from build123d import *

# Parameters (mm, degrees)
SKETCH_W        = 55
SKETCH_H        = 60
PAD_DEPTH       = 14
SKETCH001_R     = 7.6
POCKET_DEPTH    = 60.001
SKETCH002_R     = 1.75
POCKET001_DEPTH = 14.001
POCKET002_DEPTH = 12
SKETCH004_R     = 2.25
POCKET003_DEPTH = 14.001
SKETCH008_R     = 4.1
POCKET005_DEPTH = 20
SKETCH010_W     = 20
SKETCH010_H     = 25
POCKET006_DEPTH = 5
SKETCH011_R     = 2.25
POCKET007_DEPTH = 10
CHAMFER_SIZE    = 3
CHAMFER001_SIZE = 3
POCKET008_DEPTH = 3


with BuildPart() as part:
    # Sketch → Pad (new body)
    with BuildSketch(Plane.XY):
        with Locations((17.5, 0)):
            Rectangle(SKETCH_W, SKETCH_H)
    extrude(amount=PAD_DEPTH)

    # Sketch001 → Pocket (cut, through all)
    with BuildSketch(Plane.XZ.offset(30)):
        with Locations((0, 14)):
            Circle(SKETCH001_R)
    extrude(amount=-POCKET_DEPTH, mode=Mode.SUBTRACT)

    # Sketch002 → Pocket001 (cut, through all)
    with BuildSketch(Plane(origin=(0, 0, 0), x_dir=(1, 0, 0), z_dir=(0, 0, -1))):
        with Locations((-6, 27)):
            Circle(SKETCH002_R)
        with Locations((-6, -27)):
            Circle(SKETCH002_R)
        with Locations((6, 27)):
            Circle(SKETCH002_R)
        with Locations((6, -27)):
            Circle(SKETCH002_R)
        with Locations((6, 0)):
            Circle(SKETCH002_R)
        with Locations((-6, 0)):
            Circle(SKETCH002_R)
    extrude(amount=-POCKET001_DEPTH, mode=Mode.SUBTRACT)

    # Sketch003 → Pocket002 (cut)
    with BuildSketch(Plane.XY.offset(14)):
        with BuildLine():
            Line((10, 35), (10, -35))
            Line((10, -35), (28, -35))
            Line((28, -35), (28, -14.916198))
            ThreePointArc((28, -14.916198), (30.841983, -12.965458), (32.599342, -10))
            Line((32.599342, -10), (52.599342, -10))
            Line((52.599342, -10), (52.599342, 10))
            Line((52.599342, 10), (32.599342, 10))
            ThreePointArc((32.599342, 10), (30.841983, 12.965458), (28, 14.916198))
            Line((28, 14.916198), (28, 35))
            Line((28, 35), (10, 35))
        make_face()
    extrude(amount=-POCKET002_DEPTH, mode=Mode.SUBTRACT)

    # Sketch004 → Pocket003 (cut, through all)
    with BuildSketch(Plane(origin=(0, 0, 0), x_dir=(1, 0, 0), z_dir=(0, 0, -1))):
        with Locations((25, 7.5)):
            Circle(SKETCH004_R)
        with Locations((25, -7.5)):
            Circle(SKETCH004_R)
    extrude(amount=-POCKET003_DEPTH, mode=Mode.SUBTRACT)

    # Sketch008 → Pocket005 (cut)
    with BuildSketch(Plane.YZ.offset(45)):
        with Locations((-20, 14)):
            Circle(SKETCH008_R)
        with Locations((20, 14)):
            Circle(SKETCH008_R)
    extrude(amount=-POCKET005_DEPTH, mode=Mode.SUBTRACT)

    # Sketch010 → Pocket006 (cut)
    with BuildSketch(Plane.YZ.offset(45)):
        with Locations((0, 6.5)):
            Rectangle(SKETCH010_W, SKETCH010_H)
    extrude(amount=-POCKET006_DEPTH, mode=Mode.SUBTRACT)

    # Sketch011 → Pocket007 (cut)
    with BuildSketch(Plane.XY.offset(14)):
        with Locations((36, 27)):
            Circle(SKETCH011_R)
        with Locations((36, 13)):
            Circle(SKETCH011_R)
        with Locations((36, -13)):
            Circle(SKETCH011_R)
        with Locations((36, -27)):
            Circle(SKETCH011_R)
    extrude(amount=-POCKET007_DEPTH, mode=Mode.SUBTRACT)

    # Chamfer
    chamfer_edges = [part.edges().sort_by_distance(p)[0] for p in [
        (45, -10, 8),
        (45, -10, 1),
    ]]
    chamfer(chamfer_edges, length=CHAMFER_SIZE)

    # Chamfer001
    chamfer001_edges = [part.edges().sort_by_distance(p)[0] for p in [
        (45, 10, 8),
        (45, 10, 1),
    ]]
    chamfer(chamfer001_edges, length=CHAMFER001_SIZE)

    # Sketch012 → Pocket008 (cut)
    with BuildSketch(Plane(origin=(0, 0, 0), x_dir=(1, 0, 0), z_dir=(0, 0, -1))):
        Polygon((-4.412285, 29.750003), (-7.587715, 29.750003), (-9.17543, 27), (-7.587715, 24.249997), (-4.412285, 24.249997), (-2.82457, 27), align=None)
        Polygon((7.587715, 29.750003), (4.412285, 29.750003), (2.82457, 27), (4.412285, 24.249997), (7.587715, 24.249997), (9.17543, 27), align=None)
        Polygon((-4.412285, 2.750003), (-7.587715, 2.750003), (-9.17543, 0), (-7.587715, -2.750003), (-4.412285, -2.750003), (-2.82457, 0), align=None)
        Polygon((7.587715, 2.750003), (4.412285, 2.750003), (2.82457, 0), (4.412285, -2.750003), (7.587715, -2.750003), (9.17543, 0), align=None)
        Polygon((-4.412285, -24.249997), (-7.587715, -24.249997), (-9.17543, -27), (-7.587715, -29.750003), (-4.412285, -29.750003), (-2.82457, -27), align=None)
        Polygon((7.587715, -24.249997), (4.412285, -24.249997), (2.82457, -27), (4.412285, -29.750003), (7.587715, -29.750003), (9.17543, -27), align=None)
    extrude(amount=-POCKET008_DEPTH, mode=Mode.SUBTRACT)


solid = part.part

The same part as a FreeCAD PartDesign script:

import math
import FreeCAD as App
import Part
import Sketcher

V = App.Vector
Q = App.Units.Quantity


def edges_at(feature, points):
    """Names of the edges that pass closest to the given points."""
    edges = feature.Shape.Edges
    near = lambda p: min(range(len(edges)), key=lambda i: edges[i].distToShape(Part.Vertex(*p))[0])
    return sorted({f"Edge{near(p) + 1}" for p in points})


def add_polygon(sketch, points):
    """Adds a closed chain of lines whose ends are joined by coincident constraints."""
    first, n = sketch.GeometryCount, len(points)
    for a, b in zip(points, points[1:] + points[:1]):
        sketch.addGeometry(Part.LineSegment(App.Vector(*a, 0), App.Vector(*b, 0)), False)
    for i in range(n):
        sketch.addConstraint(Sketcher.Constraint("Coincident", first + i, 2, first + (i + 1) % n, 1))

doc = App.newDocument("Part")
body = doc.addObject("PartDesign::Body", "Body")

sketch1 = doc.addObject("Sketcher::SketchObject", "Sketch")
body.addObject(sketch1)
sketch1.AttachmentSupport = (doc.XY_Plane, [""])
sketch1.MapMode = "FlatFace"
add_polygon(sketch1, [(-10, 30), (-10, -30), (45, -30), (45, 30)])
sketch1.addConstraint([
    Sketcher.Constraint("Vertical", 0),
    Sketcher.Constraint("Horizontal", 1),
    Sketcher.Constraint("Vertical", 2),
    Sketcher.Constraint("Horizontal", 3),
    Sketcher.Constraint("DistanceX", 1, 1, 1, 2, Q("55 mm")),
    Sketcher.Constraint("DistanceY", 0, 2, 0, 1, Q("60 mm")),
    Sketcher.Constraint("DistanceX", 0, 2, -1, 1, Q("10 mm")),
    Sketcher.Constraint("DistanceY", 0, 2, -1, 1, Q("30 mm")),
])
pad1 = doc.addObject("PartDesign::Pad", "Pad")
body.addObject(pad1)
pad1.Profile = sketch1
pad1.Length = 14

sketch2 = doc.addObject("Sketcher::SketchObject", "Sketch001")
body.addObject(sketch2)
sketch2.AttachmentSupport = (doc.XZ_Plane, [""])
sketch2.MapMode = "FlatFace"
sketch2.AttachmentOffset = App.Placement(V(0, 0, 30), App.Rotation())
sketch2.addGeometry(Part.Circle(V(0, 14, 0), V(0, 0, 1), 8), False)
sketch2.addConstraint([
    Sketcher.Constraint("PointOnObject", 0, 3, -2),
    Sketcher.Constraint("Diameter", 0, Q("15.2 mm")),
    Sketcher.Constraint("DistanceY", -1, 1, 0, 3, Q("14 mm")),
])
pocket1 = doc.addObject("PartDesign::Pocket", "Pocket")
body.addObject(pocket1)
pocket1.Profile = sketch2
pocket1.Type = "ThroughAll"

sketch3 = doc.addObject("Sketcher::SketchObject", "Sketch002")
body.addObject(sketch3)
sketch3.AttachmentSupport = (doc.XY_Plane, [""])
sketch3.MapMode = "FlatFace"
sketch3.addGeometry([
    Part.Circle(V(-6, -27, 0), V(0, 0, 1), 1.8),
    Part.Circle(V(-6, 27, 0), V(0, 0, 1), 1.8),
    Part.Circle(V(6, -27, 0), V(0, 0, 1), 1.8),
    Part.Circle(V(6, 27, 0), V(0, 0, 1), 1.8),
    Part.Circle(V(6, 0, 0), V(0, 0, 1), 1.8),
    Part.Circle(V(-6, 0, 0), V(0, 0, 1), 1.8),
], False)
sketch3.addConstraint([
    Sketcher.Constraint("Equal", 0, 1),
    Sketcher.Constraint("Equal", 1, 2),
    Sketcher.Constraint("Equal", 2, 3),
    Sketcher.Constraint("Equal", 3, 4),
    Sketcher.Constraint("Equal", 4, 5),
    Sketcher.Constraint("Symmetric", 1, 3, 2, 3, -1, 1),
    Sketcher.Constraint("Symmetric", 0, 3, 3, 3, -1, 1),
    Sketcher.Constraint("Symmetric", 4, 3, 5, 3, -1, 1),
    Sketcher.Constraint("Symmetric", 0, 3, 2, 3, -2),
    Sketcher.Constraint("PointOnObject", 4, 3, -1),
    Sketcher.Constraint("Vertical", 3, 3, 4, 3),
    Sketcher.Constraint("Diameter", 0, Q("3.5 mm")),
    Sketcher.Constraint("DistanceX", 0, 3, -1, 1, Q("6 mm")),
    Sketcher.Constraint("DistanceY", 0, 3, -1, 1, Q("27 mm")),
])
pocket2 = doc.addObject("PartDesign::Pocket", "Pocket001")
body.addObject(pocket2)
pocket2.Profile = sketch3
pocket2.Type = "ThroughAll"
pocket2.Reversed = True

sketch4 = doc.addObject("Sketcher::SketchObject", "Sketch003")
body.addObject(sketch4)
sketch4.AttachmentSupport = (doc.XY_Plane, [""])
sketch4.MapMode = "FlatFace"
sketch4.AttachmentOffset = App.Placement(V(0, 0, 14), App.Rotation())
sketch4.addGeometry([
    Part.LineSegment(V(10, 35, 0), V(10, -35, 0)),
    Part.LineSegment(V(10, -35, 0), V(28, -35, 0)),
    Part.LineSegment(V(28, -35, 0), V(28, -15, 0)),
    Part.ArcOfCircle(Part.Circle(V(25, -8, 0), V(0, 0, 1), 8), math.radians(-68), math.radians(-18)),
    Part.LineSegment(V(33, -10, 0), V(53, -10, 0)),
    Part.LineSegment(V(53, -10, 0), V(53, 10, 0)),
    Part.LineSegment(V(53, 10, 0), V(33, 10, 0)),
    Part.ArcOfCircle(Part.Circle(V(25, 8, 0), V(0, 0, 1), 8), math.radians(18), math.radians(68)),
    Part.LineSegment(V(28, 15, 0), V(28, 35, 0)),
    Part.LineSegment(V(28, 35, 0), V(10, 35, 0)),
], False)
sketch4.addConstraint([
    Sketcher.Constraint("Coincident", 0, 2, 1, 1),
    Sketcher.Constraint("Coincident", 1, 2, 2, 1),
    Sketcher.Constraint("Coincident", 2, 2, 3, 1),
    Sketcher.Constraint("Coincident", 3, 2, 4, 1),
    Sketcher.Constraint("Coincident", 4, 2, 5, 1),
    Sketcher.Constraint("Coincident", 5, 2, 6, 1),
    Sketcher.Constraint("Coincident", 6, 2, 7, 1),
    Sketcher.Constraint("Coincident", 7, 2, 8, 1),
    Sketcher.Constraint("Coincident", 8, 2, 9, 1),
    Sketcher.Constraint("Coincident", 9, 2, 0, 1),
    Sketcher.Constraint("Vertical", 0),
    Sketcher.Constraint("Horizontal", 1),
    Sketcher.Constraint("Vertical", 2),
    Sketcher.Constraint("Horizontal", 4),
    Sketcher.Constraint("Vertical", 5),
    Sketcher.Constraint("Horizontal", 6),
    Sketcher.Constraint("Vertical", 8),
    Sketcher.Constraint("Horizontal", 9),
    Sketcher.Constraint("Equal", 3, 7),
    Sketcher.Constraint("Symmetric", 3, 3, 7, 3, -1),
    Sketcher.Constraint("Symmetric", 1, 2, 8, 2, -1),
    Sketcher.Constraint("Vertical", 3, 2, 6, 2),
    Sketcher.Constraint("Equal", 6, 5),
    Sketcher.Constraint("Radius", 3, Q("7.999999 mm")),
    Sketcher.Constraint("DistanceX", 1, 1, 1, 2, Q("18 mm")),
    Sketcher.Constraint("DistanceX", 4, 1, 4, 2, Q("20 mm")),
    Sketcher.Constraint("DistanceY", 0, 2, 0, 1, Q("70 mm")),
    Sketcher.Constraint("DistanceX", -1, 1, 3, 3, Q("25.000001 mm")),
    Sketcher.Constraint("DistanceX", -1, 1, 0, 2, Q("10 mm")),
    Sketcher.Constraint("DistanceY", 3, 3, 7, 3, Q("15 mm")),
])
pocket3 = doc.addObject("PartDesign::Pocket", "Pocket002")
body.addObject(pocket3)
pocket3.Profile = sketch4
pocket3.Length = 12

sketch5 = doc.addObject("Sketcher::SketchObject", "Sketch004")
body.addObject(sketch5)
sketch5.AttachmentSupport = (doc.XY_Plane, [""])
sketch5.MapMode = "FlatFace"
sketch5.addGeometry([
    Part.Circle(V(25, -7.5, 0), V(0, 0, 1), 2.2),
    Part.Circle(V(25, 7.5, 0), V(0, 0, 1), 2.2),
], False)
sketch5.addConstraint([
    Sketcher.Constraint("Equal", 0, 1),
    Sketcher.Constraint("Symmetric", 0, 3, 1, 3, -1),
    Sketcher.Constraint("Diameter", 0, Q("4.5 mm")),
    Sketcher.Constraint("DistanceX", -1, 1, 0, 3, Q("25 mm")),
    Sketcher.Constraint("DistanceY", 0, 3, 1, 3, Q("15 mm")),
])
pocket4 = doc.addObject("PartDesign::Pocket", "Pocket003")
body.addObject(pocket4)
pocket4.Profile = sketch5
pocket4.Type = "ThroughAll"
pocket4.Reversed = True

sketch6 = doc.addObject("Sketcher::SketchObject", "Sketch005")
body.addObject(sketch6)
sketch6.AttachmentSupport = (doc.YZ_Plane, [""])
sketch6.MapMode = "FlatFace"
sketch6.AttachmentOffset = App.Placement(V(0, 0, 45), App.Rotation())
sketch6.addGeometry([
    Part.Circle(V(-20, 14, 0), V(0, 0, 1), 4.1),
    Part.Circle(V(20, 14, 0), V(0, 0, 1), 4.1),
], False)
sketch6.addConstraint([
    Sketcher.Constraint("Equal", 0, 1),
    Sketcher.Constraint("Symmetric", 0, 3, 1, 3, -2),
    Sketcher.Constraint("Diameter", 0, Q("8.2 mm")),
    Sketcher.Constraint("DistanceX", 0, 3, -1, 1, Q("20 mm")),
    Sketcher.Constraint("DistanceY", -1, 1, 0, 3, Q("14 mm")),
])
pocket5 = doc.addObject("PartDesign::Pocket", "Pocket004")
body.addObject(pocket5)
pocket5.Profile = sketch6
pocket5.Length = 20

sketch7 = doc.addObject("Sketcher::SketchObject", "Sketch006")
body.addObject(sketch7)
sketch7.AttachmentSupport = (doc.YZ_Plane, [""])
sketch7.MapMode = "FlatFace"
sketch7.AttachmentOffset = App.Placement(V(0, 0, 45), App.Rotation())
add_polygon(sketch7, [(-10, 19), (-10, -6), (10, -6), (10, 19)])
sketch7.addConstraint([
    Sketcher.Constraint("Vertical", 0),
    Sketcher.Constraint("Horizontal", 1),
    Sketcher.Constraint("Vertical", 2),
    Sketcher.Constraint("Horizontal", 3),
    Sketcher.Constraint("DistanceX", 1, 1, 1, 2, Q("20 mm")),
    Sketcher.Constraint("DistanceY", 0, 2, 0, 1, Q("25 mm")),
    Sketcher.Constraint("DistanceX", 0, 2, -1, 1, Q("10 mm")),
    Sketcher.Constraint("DistanceY", 0, 2, -1, 1, Q("6 mm")),
])
pocket6 = doc.addObject("PartDesign::Pocket", "Pocket005")
body.addObject(pocket6)
pocket6.Profile = sketch7
pocket6.Length = 5

sketch8 = doc.addObject("Sketcher::SketchObject", "Sketch007")
body.addObject(sketch8)
sketch8.AttachmentSupport = (doc.XY_Plane, [""])
sketch8.MapMode = "FlatFace"
sketch8.AttachmentOffset = App.Placement(V(0, 0, 14), App.Rotation())
sketch8.addGeometry([
    Part.Circle(V(36, 27, 0), V(0, 0, 1), 2.2),
    Part.Circle(V(36, 13, 0), V(0, 0, 1), 2.2),
    Part.Circle(V(36, -13, 0), V(0, 0, 1), 2.2),
    Part.Circle(V(36, -27, 0), V(0, 0, 1), 2.2),
], False)
sketch8.addConstraint([
    Sketcher.Constraint("Equal", 0, 1),
    Sketcher.Constraint("Equal", 1, 2),
    Sketcher.Constraint("Equal", 2, 3),
    Sketcher.Constraint("Symmetric", 1, 3, 2, 3, -1),
    Sketcher.Constraint("Symmetric", 0, 3, 3, 3, -1),
    Sketcher.Constraint("Vertical", 0, 3, 1, 3),
    Sketcher.Constraint("Diameter", 0, Q("4.5 mm")),
    Sketcher.Constraint("DistanceX", -1, 1, 0, 3, Q("36 mm")),
    Sketcher.Constraint("DistanceY", -1, 1, 0, 3, Q("27 mm")),
    Sketcher.Constraint("DistanceY", -1, 1, 1, 3, Q("13 mm")),
])
pocket7 = doc.addObject("PartDesign::Pocket", "Pocket006")
body.addObject(pocket7)
pocket7.Profile = sketch8
pocket7.Length = 10
doc.recompute()

chamfer = doc.addObject("PartDesign::Chamfer", "Chamfer")
body.addObject(chamfer)
chamfer.Base = (pocket7, edges_at(pocket7, [(45, -10, 7), (45, -10, 7)]))
chamfer.Size = 3
doc.recompute()

chamfer2 = doc.addObject("PartDesign::Chamfer", "Chamfer001")
body.addObject(chamfer2)
chamfer2.Base = (chamfer, edges_at(chamfer, [(45, 10, 7), (45, 10, 7)]))
chamfer2.Size = 3

sketch9 = doc.addObject("Sketcher::SketchObject", "Sketch008")
body.addObject(sketch9)
sketch9.AttachmentSupport = (doc.XY_Plane, [""])
sketch9.MapMode = "FlatFace"
add_polygon(sketch9, [(-4.4, -29.8), (-7.6, -29.8), (-9.2, -27), (-7.6, -24.2), (-4.4, -24.2), (-2.8, -27)])
add_polygon(sketch9, [(7.6, -29.8), (4.4, -29.8), (2.8, -27), (4.4, -24.2), (7.6, -24.2), (9.2, -27)])
add_polygon(sketch9, [(-4.4, -2.8), (-7.6, -2.8), (-9.2, 0), (-7.6, 2.8), (-4.4, 2.8), (-2.8, 0)])
add_polygon(sketch9, [(7.6, -2.8), (4.4, -2.8), (2.8, 0), (4.4, 2.8), (7.6, 2.8), (9.2, 0)])
add_polygon(sketch9, [(-4.4, 24.2), (-7.6, 24.2), (-9.2, 27), (-7.6, 29.8), (-4.4, 29.8), (-2.8, 27)])
add_polygon(sketch9, [(7.6, 24.2), (4.4, 24.2), (2.8, 27), (4.4, 29.8), (7.6, 29.8), (9.2, 27)])
sketch9.addConstraint([
    Sketcher.Constraint("Horizontal", 0),
    Sketcher.Constraint("Horizontal", 3),
    Sketcher.Constraint("Horizontal", 6),
    Sketcher.Constraint("Horizontal", 9),
    Sketcher.Constraint("Horizontal", 12),
    Sketcher.Constraint("Horizontal", 15),
    Sketcher.Constraint("Horizontal", 18),
    Sketcher.Constraint("Horizontal", 21),
    Sketcher.Constraint("Horizontal", 24),
    Sketcher.Constraint("Horizontal", 27),
    Sketcher.Constraint("Horizontal", 30),
    Sketcher.Constraint("Horizontal", 33),
    Sketcher.Constraint("Symmetric", 15, 2, 18, 2, -1, 1),
    Sketcher.Constraint("Symmetric", 16, 2, 19, 2, -1, 1),
    Sketcher.Constraint("Symmetric", 17, 2, 20, 2, -1, 1),
    Sketcher.Constraint("Symmetric", 13, 2, 22, 2, -1, 1),
    Sketcher.Constraint("Symmetric", 9, 2, 24, 2, -1, 1),
    Sketcher.Constraint("Symmetric", 10, 2, 25, 2, -1, 1),
    Sketcher.Constraint("Symmetric", 11, 2, 26, 2, -1, 1),
    Sketcher.Constraint("Symmetric", 7, 2, 28, 2, -1, 1),
    Sketcher.Constraint("Symmetric", 3, 2, 30, 2, -1, 1),
    Sketcher.Constraint("Symmetric", 4, 2, 31, 2, -1, 1),
    Sketcher.Constraint("Symmetric", 5, 2, 32, 2, -1, 1),
    Sketcher.Constraint("Symmetric", 1, 2, 34, 2, -1, 1),
    Sketcher.Constraint("Symmetric", 5, 2, 6, 2, -2),
    Sketcher.Constraint("Symmetric", 4, 2, 7, 2, -2),
    Sketcher.Constraint("Symmetric", 3, 2, 8, 2, -2),
    Sketcher.Constraint("Symmetric", 1, 2, 10, 2, -2),
    Sketcher.Constraint("Symmetric", 17, 2, 18, 2, -2),
    Sketcher.Constraint("PointOnObject", 13, 2, -1),
    Sketcher.Constraint("PointOnObject", 16, 2, -1),
    Sketcher.Constraint("Parallel", 1, 4),
    Sketcher.Constraint("Parallel", 2, 5),
    Sketcher.Constraint("Parallel", 4, 7),
    Sketcher.Constraint("Parallel", 7, 10),
    Sketcher.Constraint("Parallel", 8, 11),
    Sketcher.Constraint("Parallel", 10, 13),
    Sketcher.Constraint("Parallel", 11, 14),
    Sketcher.Constraint("Parallel", 13, 16),
    Sketcher.Constraint("Parallel", 19, 22),
    Sketcher.Constraint("Parallel", 20, 23),
    Sketcher.Constraint("Parallel", 25, 28),
    Sketcher.Constraint("Parallel", 26, 29),
    Sketcher.Constraint("Parallel", 31, 34),
    Sketcher.Constraint("Parallel", 32, 35),
    Sketcher.Constraint("Horizontal", 1, 2, 4, 2),
    Sketcher.Constraint("Vertical", 0, 2, 2, 2),
    Sketcher.Constraint("Vertical", 2, 2, 12, 2),
    Sketcher.Constraint("Vertical", 1, 2, 13, 2),
    Sketcher.Constraint("Vertical", 5, 2, 15, 2),
    Sketcher.Constraint("Angle", 1, Q("120 deg")),
    Sketcher.Constraint("DistanceY", 1, 2, -1, 1, Q("27 mm")),
    Sketcher.Constraint("DistanceX", 0, 2, 6, 2, Q("12 mm")),
    Sketcher.Constraint("DistanceX", 0, 2, 0, 1, Q("3.17543 mm")),
    Sketcher.Constraint("Distance", 1, Q("3.17543 mm")),
])
pocket8 = doc.addObject("PartDesign::Pocket", "Pocket007")
body.addObject(pocket8)
pocket8.Profile = sketch9
pocket8.Length = 3
pocket8.Reversed = True

doc.recompute()
